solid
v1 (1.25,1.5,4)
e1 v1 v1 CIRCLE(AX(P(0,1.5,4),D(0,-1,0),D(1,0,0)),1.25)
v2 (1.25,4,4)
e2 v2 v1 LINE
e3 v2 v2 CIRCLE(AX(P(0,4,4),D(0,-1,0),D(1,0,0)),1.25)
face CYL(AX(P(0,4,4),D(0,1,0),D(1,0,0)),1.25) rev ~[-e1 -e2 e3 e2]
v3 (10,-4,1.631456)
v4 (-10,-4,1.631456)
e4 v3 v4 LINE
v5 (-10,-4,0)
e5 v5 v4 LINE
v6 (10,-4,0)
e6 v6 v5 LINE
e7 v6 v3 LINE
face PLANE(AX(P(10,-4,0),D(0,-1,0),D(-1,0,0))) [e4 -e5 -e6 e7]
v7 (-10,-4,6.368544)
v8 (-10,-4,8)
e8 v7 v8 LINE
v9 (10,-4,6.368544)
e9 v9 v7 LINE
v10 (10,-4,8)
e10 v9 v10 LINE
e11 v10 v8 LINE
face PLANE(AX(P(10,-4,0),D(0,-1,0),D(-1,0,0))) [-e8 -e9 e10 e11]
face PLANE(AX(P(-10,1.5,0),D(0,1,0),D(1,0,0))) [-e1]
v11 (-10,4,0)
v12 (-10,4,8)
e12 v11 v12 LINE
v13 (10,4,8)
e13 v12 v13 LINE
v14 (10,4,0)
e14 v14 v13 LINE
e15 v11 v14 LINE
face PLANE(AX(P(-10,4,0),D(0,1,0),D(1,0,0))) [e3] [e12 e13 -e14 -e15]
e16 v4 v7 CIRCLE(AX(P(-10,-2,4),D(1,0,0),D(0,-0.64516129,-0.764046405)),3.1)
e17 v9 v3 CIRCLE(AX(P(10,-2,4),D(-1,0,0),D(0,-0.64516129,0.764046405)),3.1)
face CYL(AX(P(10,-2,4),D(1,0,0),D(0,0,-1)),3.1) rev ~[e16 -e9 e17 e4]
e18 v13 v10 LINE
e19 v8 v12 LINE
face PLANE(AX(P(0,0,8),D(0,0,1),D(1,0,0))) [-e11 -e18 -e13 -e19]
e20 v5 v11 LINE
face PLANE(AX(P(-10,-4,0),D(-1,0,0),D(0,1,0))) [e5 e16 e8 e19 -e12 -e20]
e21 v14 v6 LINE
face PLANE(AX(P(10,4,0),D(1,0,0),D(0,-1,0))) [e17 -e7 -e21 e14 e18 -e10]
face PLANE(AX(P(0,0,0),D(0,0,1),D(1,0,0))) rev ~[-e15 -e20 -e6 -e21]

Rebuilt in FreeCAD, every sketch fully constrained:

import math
import FreeCAD as App
import Part
import Sketcher
Q = App.Units.Quantity

doc = App.newDocument("Part")
body = doc.addObject("PartDesign::Body", "Body")

sketch1 = doc.addObject("Sketcher::SketchObject", "Sketch")
body.addObject(sketch1)
sketch1.AttachmentSupport = (doc.XY_Plane, [""])
sketch1.MapMode = "FlatFace"
sketch1.addGeometry([
    Part.LineSegment(App.Vector(10, 4, 0), App.Vector(-10, 4, 0)),
    Part.LineSegment(App.Vector(-10, 4, 0), App.Vector(-10, -4, 0)),
    Part.LineSegment(App.Vector(-10, -4, 0), App.Vector(10, -4, 0)),
    Part.LineSegment(App.Vector(10, -4, 0), App.Vector(10, 4, 0)),
], False)
sketch1.addConstraint([
    Sketcher.Constraint("Coincident", 0, 2, 1, 1),
    Sketcher.Constraint("Coincident", 1, 2, 2, 1),
    Sketcher.Constraint("Coincident", 2, 2, 3, 1),
    Sketcher.Constraint("Coincident", 3, 2, 0, 1),
    Sketcher.Constraint("Horizontal", 0),
    Sketcher.Constraint("Vertical", 1),
    Sketcher.Constraint("Horizontal", 2),
    Sketcher.Constraint("Vertical", 3),
    Sketcher.Constraint("Symmetric", 0, 2, 2, 2, -1, 1),
    Sketcher.Constraint("DistanceX", 0, 2, 0, 1, Q("20 mm")),
    Sketcher.Constraint("DistanceY", 1, 2, 1, 1, Q("8 mm")),
])
pad1 = doc.addObject("PartDesign::Pad", "Pad")
body.addObject(pad1)
pad1.Profile = sketch1
pad1.Length = 8

sketch2 = doc.addObject("Sketcher::SketchObject", "Sketch001")
body.addObject(sketch2)
sketch2.AttachmentSupport = (doc.YZ_Plane, [""])
sketch2.MapMode = "FlatFace"
sketch2.AttachmentOffset = App.Placement(App.Vector(0, 0, 10), App.Rotation())
sketch2.addGeometry([
    Part.LineSegment(App.Vector(-4, 6.368544, 0), App.Vector(-4, 1.631456, 0)),
    Part.ArcOfCircle(Part.Circle(App.Vector(-2, 4, 0), App.Vector(0, 0, 1), 3.1), math.radians(-130.17777), math.radians(130.17777)),
], False)
sketch2.addConstraint([
    Sketcher.Constraint("Coincident", 0, 1, 1, 2),
    Sketcher.Constraint("Coincident", 1, 1, 0, 2),
    Sketcher.Constraint("Vertical", 0),
    Sketcher.Constraint("Radius", 1, Q("3.1 mm")),
    Sketcher.Constraint("DistanceX", 1, 3, -1, 1, Q("2 mm")),
    Sketcher.Constraint("DistanceX", 0, 1, 1, 3, Q("2 mm")),
    Sketcher.Constraint("DistanceY", -1, 1, 1, 3, Q("4 mm")),
])
pocket1 = doc.addObject("PartDesign::Pocket", "Pocket")
body.addObject(pocket1)
pocket1.Profile = sketch2
pocket1.Length = 20

sketch3 = doc.addObject("Sketcher::SketchObject", "Sketch002")
body.addObject(sketch3)
sketch3.AttachmentSupport = (doc.XZ_Plane, [""])
sketch3.MapMode = "FlatFace"
sketch3.AttachmentOffset = App.Placement(App.Vector(0, 0, -4), App.Rotation())
sketch3.addGeometry(Part.Circle(App.Vector(0, 4, 0), App.Vector(0, 0, 1), 1.25), False)
sketch3.addConstraint([
    Sketcher.Constraint("PointOnObject", 0, 3, -2),
    Sketcher.Constraint("Diameter", 0, Q("2.5 mm")),
    Sketcher.Constraint("DistanceY", -1, 1, 0, 3, Q("4 mm")),
])
pocket2 = doc.addObject("PartDesign::Pocket", "Pocket001")
body.addObject(pocket2)
pocket2.Profile = sketch3
pocket2.Length = 2.5
pocket2.Reversed = True

doc.recompute()
